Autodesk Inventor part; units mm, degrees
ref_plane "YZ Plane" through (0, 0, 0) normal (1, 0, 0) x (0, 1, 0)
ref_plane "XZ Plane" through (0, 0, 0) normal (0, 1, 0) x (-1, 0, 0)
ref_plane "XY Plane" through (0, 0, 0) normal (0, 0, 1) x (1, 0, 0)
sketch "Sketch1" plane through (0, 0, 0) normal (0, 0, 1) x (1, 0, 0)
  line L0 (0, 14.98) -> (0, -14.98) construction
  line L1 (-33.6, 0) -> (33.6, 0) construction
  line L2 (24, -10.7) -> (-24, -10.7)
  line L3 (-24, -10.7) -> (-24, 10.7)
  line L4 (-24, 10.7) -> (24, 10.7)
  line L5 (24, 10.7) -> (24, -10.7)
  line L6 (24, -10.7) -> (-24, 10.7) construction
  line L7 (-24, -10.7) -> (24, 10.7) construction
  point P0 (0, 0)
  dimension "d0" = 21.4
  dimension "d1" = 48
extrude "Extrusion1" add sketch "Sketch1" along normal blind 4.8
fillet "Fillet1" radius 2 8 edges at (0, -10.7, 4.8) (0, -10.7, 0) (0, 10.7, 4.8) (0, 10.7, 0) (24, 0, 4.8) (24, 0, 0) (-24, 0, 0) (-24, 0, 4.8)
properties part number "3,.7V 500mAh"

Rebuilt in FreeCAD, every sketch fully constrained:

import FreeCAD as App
import Part
import Sketcher

V = App.Vector


def edges_at(feature, points):
    """Names of the edges that pass closest to the given points."""
    edges = feature.Shape.Edges
    near = lambda p: min(range(len(edges)), key=lambda i: edges[i].distToShape(Part.Vertex(*p))[0])
    return sorted({f"Edge{near(p) + 1}" for p in points})


def add_polygon(sketch, points):
    """Adds a closed chain of lines whose ends are joined by coincident constraints."""
    first, n = sketch.GeometryCount, len(points)
    for a, b in zip(points, points[1:] + points[:1]):
        sketch.addGeometry(Part.LineSegment(App.Vector(*a, 0), App.Vector(*b, 0)), False)
    for i in range(n):
        sketch.addConstraint(Sketcher.Constraint("Coincident", first + i, 2, first + (i + 1) % n, 1))

doc = App.newDocument("Part")
body = doc.addObject("PartDesign::Body", "Body")

# Sketch on XY plane
sketch1 = doc.addObject("Sketcher::SketchObject", "Sketch")
body.addObject(sketch1)
sketch1.AttachmentSupport = (doc.XY_Plane, [""])
sketch1.MapMode = "FlatFace"
add_polygon(sketch1, [(-24, -10.7), (24, -10.7), (24, 10.7), (-24, 10.7)])  # lines 0-3
sketch1.addConstraint([
    Sketcher.Constraint("Horizontal", 0),
    Sketcher.Constraint("Vertical", 1),
    Sketcher.Constraint("Horizontal", 2),
    Sketcher.Constraint("Vertical", 3),
    Sketcher.Constraint("Symmetric", 0, 2, 2, 2, -1, 1),
    Sketcher.Constraint("DistanceX", 0, 1, 0, 2, 48.0),
    Sketcher.Constraint("DistanceY", 1, 1, 1, 2, 21.4),
])
pad1 = doc.addObject("PartDesign::Pad", "Pad")
body.addObject(pad1)
pad1.Profile = sketch1
pad1.Length = 4.8
doc.recompute()

fillet = doc.addObject("PartDesign::Fillet", "Fillet")
body.addObject(fillet)
fillet.Base = (pad1, edges_at(pad1, [
    (0, -10.7, 4.8),
    (0, -10.7, 0),
    (0, 10.7, 4.8),
    (0, 10.7, 0),
    (24, 0, 4.8),
    (24, 0, 0),
    (-24, 0, 0),
    (-24, 0, 4.8),
]))
fillet.Radius = 2

doc.recompute()
